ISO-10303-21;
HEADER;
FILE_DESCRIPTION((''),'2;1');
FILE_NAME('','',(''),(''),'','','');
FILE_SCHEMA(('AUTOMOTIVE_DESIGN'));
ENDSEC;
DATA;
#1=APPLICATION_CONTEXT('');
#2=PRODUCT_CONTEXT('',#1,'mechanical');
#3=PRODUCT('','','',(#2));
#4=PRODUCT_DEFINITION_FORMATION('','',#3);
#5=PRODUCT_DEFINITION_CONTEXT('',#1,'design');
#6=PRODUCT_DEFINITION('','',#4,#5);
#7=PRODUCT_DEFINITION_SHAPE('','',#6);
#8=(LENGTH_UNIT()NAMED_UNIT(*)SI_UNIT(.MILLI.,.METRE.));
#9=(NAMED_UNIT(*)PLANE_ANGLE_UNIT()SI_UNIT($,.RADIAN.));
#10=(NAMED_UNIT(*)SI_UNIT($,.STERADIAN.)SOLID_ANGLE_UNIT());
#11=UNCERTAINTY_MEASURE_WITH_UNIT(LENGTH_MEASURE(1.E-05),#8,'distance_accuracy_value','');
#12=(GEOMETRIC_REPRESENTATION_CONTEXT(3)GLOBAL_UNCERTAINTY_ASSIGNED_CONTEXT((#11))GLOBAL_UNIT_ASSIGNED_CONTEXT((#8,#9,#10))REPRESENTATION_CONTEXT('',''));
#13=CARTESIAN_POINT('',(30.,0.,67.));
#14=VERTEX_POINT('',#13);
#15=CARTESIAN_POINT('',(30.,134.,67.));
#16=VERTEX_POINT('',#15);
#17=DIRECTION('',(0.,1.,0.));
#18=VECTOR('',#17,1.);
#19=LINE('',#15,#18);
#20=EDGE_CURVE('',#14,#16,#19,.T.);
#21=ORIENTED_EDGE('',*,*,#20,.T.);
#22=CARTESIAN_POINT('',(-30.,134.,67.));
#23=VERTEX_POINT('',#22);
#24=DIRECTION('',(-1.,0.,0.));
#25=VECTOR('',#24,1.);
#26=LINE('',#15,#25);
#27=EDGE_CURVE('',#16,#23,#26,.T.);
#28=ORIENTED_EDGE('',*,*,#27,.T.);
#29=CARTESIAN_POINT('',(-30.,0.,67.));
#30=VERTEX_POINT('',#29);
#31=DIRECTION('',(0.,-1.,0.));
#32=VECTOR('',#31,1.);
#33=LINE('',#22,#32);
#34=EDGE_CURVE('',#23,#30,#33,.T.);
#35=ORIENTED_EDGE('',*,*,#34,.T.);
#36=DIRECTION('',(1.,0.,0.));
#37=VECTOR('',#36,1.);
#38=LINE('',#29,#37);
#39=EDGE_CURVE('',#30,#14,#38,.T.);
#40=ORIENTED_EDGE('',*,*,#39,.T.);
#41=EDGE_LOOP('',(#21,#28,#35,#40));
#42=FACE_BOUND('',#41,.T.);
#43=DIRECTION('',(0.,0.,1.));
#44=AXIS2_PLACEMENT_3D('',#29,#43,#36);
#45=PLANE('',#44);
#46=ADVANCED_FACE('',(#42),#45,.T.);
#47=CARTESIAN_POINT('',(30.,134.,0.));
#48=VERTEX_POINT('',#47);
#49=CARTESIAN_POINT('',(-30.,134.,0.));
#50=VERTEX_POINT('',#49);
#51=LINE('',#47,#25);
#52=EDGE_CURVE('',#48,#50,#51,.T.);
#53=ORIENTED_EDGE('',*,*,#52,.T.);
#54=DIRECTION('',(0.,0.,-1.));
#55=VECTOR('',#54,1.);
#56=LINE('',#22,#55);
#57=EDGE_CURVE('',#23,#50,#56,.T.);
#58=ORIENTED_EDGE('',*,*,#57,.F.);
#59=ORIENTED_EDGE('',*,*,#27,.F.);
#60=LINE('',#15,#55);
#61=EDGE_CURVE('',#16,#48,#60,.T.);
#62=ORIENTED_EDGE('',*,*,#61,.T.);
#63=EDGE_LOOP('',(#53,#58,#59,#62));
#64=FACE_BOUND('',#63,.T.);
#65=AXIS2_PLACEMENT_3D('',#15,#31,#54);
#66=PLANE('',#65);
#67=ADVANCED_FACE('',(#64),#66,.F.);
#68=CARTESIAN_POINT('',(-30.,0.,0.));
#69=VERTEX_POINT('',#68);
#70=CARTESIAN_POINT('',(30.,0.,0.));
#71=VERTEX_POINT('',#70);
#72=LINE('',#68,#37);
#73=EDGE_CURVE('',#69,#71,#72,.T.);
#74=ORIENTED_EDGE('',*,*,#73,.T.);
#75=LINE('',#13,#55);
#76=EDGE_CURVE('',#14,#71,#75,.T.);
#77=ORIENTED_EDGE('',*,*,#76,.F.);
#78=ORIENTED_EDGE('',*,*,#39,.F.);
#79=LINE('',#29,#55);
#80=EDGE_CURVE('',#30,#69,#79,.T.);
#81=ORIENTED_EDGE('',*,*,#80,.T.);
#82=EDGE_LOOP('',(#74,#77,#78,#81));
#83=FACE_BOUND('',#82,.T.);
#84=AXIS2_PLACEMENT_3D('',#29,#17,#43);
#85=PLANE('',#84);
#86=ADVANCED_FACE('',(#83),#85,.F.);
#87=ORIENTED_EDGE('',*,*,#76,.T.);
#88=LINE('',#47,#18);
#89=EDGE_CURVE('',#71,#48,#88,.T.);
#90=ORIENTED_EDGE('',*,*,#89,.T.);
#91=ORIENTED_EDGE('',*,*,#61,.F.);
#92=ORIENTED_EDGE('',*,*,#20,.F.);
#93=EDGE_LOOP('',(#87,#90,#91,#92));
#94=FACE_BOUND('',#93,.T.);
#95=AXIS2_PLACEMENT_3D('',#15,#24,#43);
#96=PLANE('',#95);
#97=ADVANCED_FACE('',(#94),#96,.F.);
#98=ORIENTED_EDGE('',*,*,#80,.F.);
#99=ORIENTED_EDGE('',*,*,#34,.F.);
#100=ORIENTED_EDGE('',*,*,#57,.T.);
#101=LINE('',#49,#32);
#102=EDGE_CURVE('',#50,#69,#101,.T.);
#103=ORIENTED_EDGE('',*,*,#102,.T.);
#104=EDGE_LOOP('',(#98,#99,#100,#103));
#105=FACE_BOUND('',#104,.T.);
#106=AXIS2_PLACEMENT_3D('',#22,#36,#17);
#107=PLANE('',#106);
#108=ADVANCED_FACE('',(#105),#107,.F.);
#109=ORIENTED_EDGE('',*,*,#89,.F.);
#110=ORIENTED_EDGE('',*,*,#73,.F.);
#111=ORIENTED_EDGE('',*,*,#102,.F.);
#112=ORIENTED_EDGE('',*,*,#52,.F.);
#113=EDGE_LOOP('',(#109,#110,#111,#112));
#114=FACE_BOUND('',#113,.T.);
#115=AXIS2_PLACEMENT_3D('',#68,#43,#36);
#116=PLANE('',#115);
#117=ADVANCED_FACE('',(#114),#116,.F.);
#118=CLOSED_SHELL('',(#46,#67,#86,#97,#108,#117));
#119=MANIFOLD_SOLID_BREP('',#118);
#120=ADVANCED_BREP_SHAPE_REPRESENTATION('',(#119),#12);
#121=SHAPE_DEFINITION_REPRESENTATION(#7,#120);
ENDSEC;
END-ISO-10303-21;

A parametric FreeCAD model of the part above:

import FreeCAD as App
import Part
import Sketcher
from FreeCAD import Vector
Q = App.Units.Quantity

doc = App.newDocument("Part")
body = doc.addObject("PartDesign::Body", "Body")

sketch1 = body.newObject("Sketcher::SketchObject", "Sketch")
sketch1.AttachmentSupport = (doc.getObject("XY_Plane"), [""])
sketch1.MapMode = "FlatFace"
sketch1.addGeometry([
    Part.LineSegment(Vector(-30, 134, 0), Vector(-30, 0, 0)),
    Part.LineSegment(Vector(-30, 0, 0), Vector(30, 0, 0)),
    Part.LineSegment(Vector(30, 0, 0), Vector(30, 134, 0)),
    Part.LineSegment(Vector(30, 134, 0), Vector(-30, 134, 0)),
], False)
sketch1.addConstraint([
    Sketcher.Constraint("Coincident", 0, 2, 1, 1),
    Sketcher.Constraint("Coincident", 1, 2, 2, 1),
    Sketcher.Constraint("Coincident", 2, 2, 3, 1),
    Sketcher.Constraint("Coincident", 3, 2, 0, 1),
    Sketcher.Constraint("Vertical", 0),
    Sketcher.Constraint("Horizontal", 1),
    Sketcher.Constraint("Vertical", 2),
    Sketcher.Constraint("Horizontal", 3),
    Sketcher.Constraint("Symmetric", 0, 2, 1, 2, -1, 1),
    Sketcher.Constraint("DistanceX", 1, 1, 1, 2, Q("60 mm")),
    Sketcher.Constraint("DistanceY", 0, 2, 0, 1, Q("134 mm")),
])
pad1 = body.newObject("PartDesign::Pad", "Pad")
pad1.Profile = sketch1
pad1.Length = 67

doc.recompute()
